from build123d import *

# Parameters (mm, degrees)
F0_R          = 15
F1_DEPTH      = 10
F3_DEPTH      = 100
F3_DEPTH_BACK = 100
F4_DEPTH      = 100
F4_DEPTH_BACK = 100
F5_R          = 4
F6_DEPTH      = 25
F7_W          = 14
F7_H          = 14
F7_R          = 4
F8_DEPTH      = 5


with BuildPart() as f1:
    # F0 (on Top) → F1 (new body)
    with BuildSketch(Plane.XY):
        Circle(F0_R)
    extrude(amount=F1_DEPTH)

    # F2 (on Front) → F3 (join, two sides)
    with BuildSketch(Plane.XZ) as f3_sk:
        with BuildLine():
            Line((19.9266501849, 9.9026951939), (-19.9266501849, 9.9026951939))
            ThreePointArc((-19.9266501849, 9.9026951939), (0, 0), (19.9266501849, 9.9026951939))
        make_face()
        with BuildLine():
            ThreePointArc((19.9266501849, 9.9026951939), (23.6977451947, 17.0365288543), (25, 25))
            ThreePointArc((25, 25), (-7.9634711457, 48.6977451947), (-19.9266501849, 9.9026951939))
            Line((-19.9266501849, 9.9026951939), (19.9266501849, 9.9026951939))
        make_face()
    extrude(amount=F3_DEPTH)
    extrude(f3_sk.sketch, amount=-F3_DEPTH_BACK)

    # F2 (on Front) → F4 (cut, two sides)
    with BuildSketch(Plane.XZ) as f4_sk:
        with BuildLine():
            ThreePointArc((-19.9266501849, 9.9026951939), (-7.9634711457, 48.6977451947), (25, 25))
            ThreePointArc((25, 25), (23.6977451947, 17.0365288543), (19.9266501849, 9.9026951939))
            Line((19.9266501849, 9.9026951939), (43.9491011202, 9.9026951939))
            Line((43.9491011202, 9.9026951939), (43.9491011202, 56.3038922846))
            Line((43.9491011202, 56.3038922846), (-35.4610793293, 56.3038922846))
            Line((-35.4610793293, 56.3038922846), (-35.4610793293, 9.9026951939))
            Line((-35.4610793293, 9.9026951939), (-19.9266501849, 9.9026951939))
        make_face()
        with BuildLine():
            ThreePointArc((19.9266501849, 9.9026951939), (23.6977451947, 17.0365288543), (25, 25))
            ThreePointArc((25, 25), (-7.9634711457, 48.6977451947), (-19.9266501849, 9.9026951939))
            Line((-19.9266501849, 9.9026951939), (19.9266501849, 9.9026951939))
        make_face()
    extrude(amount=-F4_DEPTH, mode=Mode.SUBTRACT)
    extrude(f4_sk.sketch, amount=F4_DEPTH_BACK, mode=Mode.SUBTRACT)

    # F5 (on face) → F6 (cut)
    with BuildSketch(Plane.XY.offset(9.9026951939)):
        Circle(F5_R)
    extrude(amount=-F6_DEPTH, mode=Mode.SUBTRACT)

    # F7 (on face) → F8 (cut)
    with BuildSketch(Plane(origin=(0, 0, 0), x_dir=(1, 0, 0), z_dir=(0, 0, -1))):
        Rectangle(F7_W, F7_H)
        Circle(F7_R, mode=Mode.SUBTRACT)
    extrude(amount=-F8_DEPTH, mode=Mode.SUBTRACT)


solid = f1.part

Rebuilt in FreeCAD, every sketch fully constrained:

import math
import FreeCAD as App
import Part
import Sketcher
from FreeCAD import Vector

doc = App.newDocument("Part")
body = doc.addObject("PartDesign::Body", "Body")

# Sketch on XY plane
sketch1 = doc.addObject("Sketcher::SketchObject", "Sketch")
body.addObject(sketch1)
sketch1.AttachmentSupport = (doc.XY_Plane, [""])
sketch1.MapMode = "FlatFace"
sketch1.addGeometry(Part.Circle(Vector(0, 0, 0), Vector(0, 0, 1), 15), False)
sketch1.addConstraint(Sketcher.Constraint("Coincident", 0, 3, -1, 1))
sketch1.addConstraint(Sketcher.Constraint("Diameter", 0, 30.0))
pad1 = doc.addObject("PartDesign::Pad", "Pad")
body.addObject(pad1)
pad1.Profile = sketch1
pad1.Length = 10

# Sketch on XZ plane
sketch2 = doc.addObject("Sketcher::SketchObject", "Sketch001")
body.addObject(sketch2)
sketch2.AttachmentSupport = (doc.XZ_Plane, [""])
sketch2.MapMode = "FlatFace"
sketch2.addGeometry(Part.ArcOfCircle(Part.Circle(Vector(0, 25, 0), Vector(0, 0, 1), 25), math.radians(-143), math.radians(-37)), False)
sketch2.addGeometry(Part.ArcOfCircle(Part.Circle(Vector(0, 25, 0), Vector(0, 0, 1), 25), math.radians(-37), math.radians(0)), False)
sketch2.addGeometry(Part.ArcOfCircle(Part.Circle(Vector(0, 25, 0), Vector(0, 0, 1), 25), math.radians(0), math.radians(217)), False)
sketch2.addConstraint(Sketcher.Constraint("Tangent", 0, 2, 1, 1))
sketch2.addConstraint(Sketcher.Constraint("Tangent", 1, 2, 2, 1))
sketch2.addConstraint(Sketcher.Constraint("Tangent", 2, 2, 0, 1))
sketch2.addConstraint(Sketcher.Constraint("Symmetric", 0, 2, 2, 2, -2))
sketch2.addConstraint(Sketcher.Constraint("Horizontal", 2, 3, 1, 2))
sketch2.addConstraint(Sketcher.Constraint("Radius", 0, 25.0))
sketch2.addConstraint(Sketcher.Constraint("DistanceY", -1, 1, 0, 3, 25.0))
sketch2.addConstraint(Sketcher.Constraint("DistanceX", 2, 2, 0, 2, 39.8533))
pad2 = doc.addObject("PartDesign::Pad", "Pad001")
body.addObject(pad2)
pad2.Profile = sketch2
pad2.Type = "TwoLengths"
pad2.Length = 100
pad2.Length2 = 100

# Sketch on XZ plane
sketch3 = doc.addObject("Sketcher::SketchObject", "Sketch002")
body.addObject(sketch3)
sketch3.AttachmentSupport = (doc.XZ_Plane, [""])
sketch3.MapMode = "FlatFace"
sketch3.addGeometry(Part.LineSegment(Vector(44, 10, 0), Vector(44, 56, 0)), False)
sketch3.addGeometry(Part.LineSegment(Vector(44, 56, 0), Vector(-35, 56, 0)), False)
sketch3.addGeometry(Part.LineSegment(Vector(-35, 56, 0), Vector(-35, 10, 0)), False)
sketch3.addGeometry(Part.LineSegment(Vector(-35, 10, 0), Vector(44, 10, 0)), False)
sketch3.addConstraint(Sketcher.Constraint("Coincident", 0, 2, 1, 1))
sketch3.addConstraint(Sketcher.Constraint("Coincident", 1, 2, 2, 1))
sketch3.addConstraint(Sketcher.Constraint("Coincident", 2, 2, 3, 1))
sketch3.addConstraint(Sketcher.Constraint("Coincident", 3, 2, 0, 1))
sketch3.addConstraint(Sketcher.Constraint("Vertical", 0))
sketch3.addConstraint(Sketcher.Constraint("Horizontal", 1))
sketch3.addConstraint(Sketcher.Constraint("Vertical", 2))
sketch3.addConstraint(Sketcher.Constraint("Horizontal", 3))
sketch3.addConstraint(Sketcher.Constraint("DistanceX", 1, 2, 1, 1, 79.41018))
sketch3.addConstraint(Sketcher.Constraint("DistanceX", -1, 1, 0, 2, 43.949101))
sketch3.addConstraint(Sketcher.Constraint("DistanceY", 0, 1, 0, 2, 46.401197))
sketch3.addConstraint(Sketcher.Constraint("DistanceY", -1, 1, 0, 2, 56.303892))
pocket1 = doc.addObject("PartDesign::Pocket", "Pocket")
body.addObject(pocket1)
pocket1.Profile = sketch3
pocket1.Type = "ThroughAll"
pocket1.Midplane = True

# Sketch on XY plane
sketch4 = doc.addObject("Sketcher::SketchObject", "Sketch003")
body.addObject(sketch4)
sketch4.AttachmentSupport = (doc.XY_Plane, [""])
sketch4.MapMode = "FlatFace"
sketch4.AttachmentOffset = App.Placement(Vector(0, 0, 9.902695), App.Rotation())
sketch4.addGeometry(Part.Circle(Vector(0, 0, 0), Vector(0, 0, 1), 4), False)
sketch4.addConstraint(Sketcher.Constraint("Coincident", 0, 3, -1, 1))
sketch4.addConstraint(Sketcher.Constraint("Diameter", 0, 8.0))
pocket2 = doc.addObject("PartDesign::Pocket", "Pocket001")
body.addObject(pocket2)
pocket2.Profile = sketch4
pocket2.Length = 25

# Sketch on XY plane
sketch5 = doc.addObject("Sketcher::SketchObject", "Sketch004")
body.addObject(sketch5)
sketch5.AttachmentSupport = (doc.XY_Plane, [""])
sketch5.MapMode = "FlatFace"
sketch5.addGeometry(Part.LineSegment(Vector(-7, -7, 0), Vector(-7, 7, 0)), False)
sketch5.addGeometry(Part.LineSegment(Vector(-7, 7, 0), Vector(7, 7, 0)), False)
sketch5.addGeometry(Part.LineSegment(Vector(7, 7, 0), Vector(7, -7, 0)), False)
sketch5.addGeometry(Part.LineSegment(Vector(7, -7, 0), Vector(-7, -7, 0)), False)
sketch5.addGeometry(Part.Circle(Vector(0, 0, 0), Vector(0, 0, 1), 4), False)
sketch5.addConstraint(Sketcher.Constraint("Coincident", 0, 2, 1, 1))
sketch5.addConstraint(Sketcher.Constraint("Coincident", 1, 2, 2, 1))
sketch5.addConstraint(Sketcher.Constraint("Coincident", 2, 2, 3, 1))
sketch5.addConstraint(Sketcher.Constraint("Coincident", 3, 2, 0, 1))
sketch5.addConstraint(Sketcher.Constraint("Vertical", 0))
sketch5.addConstraint(Sketcher.Constraint("Horizontal", 1))
sketch5.addConstraint(Sketcher.Constraint("Vertical", 2))
sketch5.addConstraint(Sketcher.Constraint("Horizontal", 3))
sketch5.addConstraint(Sketcher.Constraint("Coincident", 4, 3, -1, 1))
sketch5.addConstraint(Sketcher.Constraint("Symmetric", 0, 2, 2, 2, -1, 1))
sketch5.addConstraint(Sketcher.Constraint("Equal", 3, 0))
sketch5.addConstraint(Sketcher.Constraint("Diameter", 4, 8.0))
sketch5.addConstraint(Sketcher.Constraint("DistanceX", 1, 1, 1, 2, 14.0))
pocket3 = doc.addObject("PartDesign::Pocket", "Pocket002")
body.addObject(pocket3)
pocket3.Profile = sketch5
pocket3.Length = 5
pocket3.Reversed = True

doc.recompute()
